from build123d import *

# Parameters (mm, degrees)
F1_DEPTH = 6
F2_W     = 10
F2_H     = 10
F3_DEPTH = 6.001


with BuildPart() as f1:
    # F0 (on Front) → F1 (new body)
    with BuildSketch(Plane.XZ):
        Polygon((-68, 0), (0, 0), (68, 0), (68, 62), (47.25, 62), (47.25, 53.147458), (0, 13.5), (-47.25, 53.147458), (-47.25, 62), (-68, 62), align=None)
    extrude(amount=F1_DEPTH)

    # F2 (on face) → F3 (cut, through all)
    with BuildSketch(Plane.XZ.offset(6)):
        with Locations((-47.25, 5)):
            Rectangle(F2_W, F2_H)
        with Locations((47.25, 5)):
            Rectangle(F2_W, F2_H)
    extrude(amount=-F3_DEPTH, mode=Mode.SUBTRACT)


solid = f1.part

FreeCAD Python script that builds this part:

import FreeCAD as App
import Part
import Sketcher

V = App.Vector
Q = App.Units.Quantity


def add_polygon(sketch, points):
    """Adds a closed chain of lines whose ends are joined by coincident constraints."""
    first, n = sketch.GeometryCount, len(points)
    for a, b in zip(points, points[1:] + points[:1]):
        sketch.addGeometry(Part.LineSegment(App.Vector(*a, 0), App.Vector(*b, 0)), False)
    for i in range(n):
        sketch.addConstraint(Sketcher.Constraint("Coincident", first + i, 2, first + (i + 1) % n, 1))

doc = App.newDocument("Part")
body = doc.addObject("PartDesign::Body", "Body")

# Sketch on XZ plane
sketch1 = doc.addObject("Sketcher::SketchObject", "Sketch")
body.addObject(sketch1)
sketch1.AttachmentSupport = (doc.XZ_Plane, [""])
sketch1.MapMode = "FlatFace"
add_polygon(sketch1, [(-68, 0), (68, 0), (68, 62), (47, 62), (47, 53), (0, 14), (-47, 53), (-47, 62), (-68, 62)])  # lines 0-8
sketch1.addConstraint([
    Sketcher.Constraint("Horizontal", 0),
    Sketcher.Constraint("Vertical", 1),
    Sketcher.Constraint("Horizontal", 2),
    Sketcher.Constraint("Vertical", 3),
    Sketcher.Constraint("Vertical", 6),
    Sketcher.Constraint("Horizontal", 7),
    Sketcher.Constraint("Vertical", 8),
    Sketcher.Constraint("Symmetric", 0, 2, 8, 2, -1, 1),
    Sketcher.Constraint("Symmetric", 3, 2, 5, 2, -2),
    Sketcher.Constraint("PointOnObject", 4, 2, -2),
    Sketcher.Constraint("Horizontal", 2, 2, 6, 2),
    Sketcher.Constraint("DistanceX", 0, 1, 0, 2, 136.0),
    Sketcher.Constraint("DistanceY", 1, 1, 1, 2, 62.0),
    Sketcher.Constraint("Angle", 4, Q("-140 deg")),
    Sketcher.Constraint("DistanceX", 2, 2, 2, 1, 20.75),
    Sketcher.Constraint("DistanceY", -1, 1, 4, 2, 13.5),
])
pad1 = doc.addObject("PartDesign::Pad", "Pad")
body.addObject(pad1)
pad1.Profile = sketch1
pad1.Length = 6

# Sketch on XZ plane
sketch2 = doc.addObject("Sketcher::SketchObject", "Sketch001")
body.addObject(sketch2)
sketch2.AttachmentSupport = (doc.XZ_Plane, [""])
sketch2.MapMode = "FlatFace"
sketch2.AttachmentOffset = App.Placement(V(0, 0, 6), App.Rotation())
add_polygon(sketch2, [(-52, 10), (-52, 0), (-42, 0), (-42, 10)])  # lines 0-3
add_polygon(sketch2, [(42, 10), (42, 0), (52, 0), (52, 10)])  # lines 4-7
sketch2.addConstraint([
    Sketcher.Constraint("Vertical", 0),
    Sketcher.Constraint("Horizontal", 1),
    Sketcher.Constraint("Vertical", 2),
    Sketcher.Constraint("Horizontal", 3),
    Sketcher.Constraint("Vertical", 4),
    Sketcher.Constraint("Horizontal", 5),
    Sketcher.Constraint("Vertical", 6),
    Sketcher.Constraint("Horizontal", 7),
    Sketcher.Constraint("Symmetric", 1, 2, 4, 2, -1, 1),
    Sketcher.Constraint("Symmetric", 0, 2, 5, 2, -2),
    Sketcher.Constraint("Horizontal", 3, 2, 6, 2),
    Sketcher.Constraint("Equal", 7, 0),
    Sketcher.Constraint("DistanceX", 1, 1, 1, 2, 10.0),
    Sketcher.Constraint("DistanceX", 1, 2, 4, 2, 84.5),
])
pocket1 = doc.addObject("PartDesign::Pocket", "Pocket")
body.addObject(pocket1)
pocket1.Profile = sketch2
pocket1.Type = "ThroughAll"

doc.recompute()
